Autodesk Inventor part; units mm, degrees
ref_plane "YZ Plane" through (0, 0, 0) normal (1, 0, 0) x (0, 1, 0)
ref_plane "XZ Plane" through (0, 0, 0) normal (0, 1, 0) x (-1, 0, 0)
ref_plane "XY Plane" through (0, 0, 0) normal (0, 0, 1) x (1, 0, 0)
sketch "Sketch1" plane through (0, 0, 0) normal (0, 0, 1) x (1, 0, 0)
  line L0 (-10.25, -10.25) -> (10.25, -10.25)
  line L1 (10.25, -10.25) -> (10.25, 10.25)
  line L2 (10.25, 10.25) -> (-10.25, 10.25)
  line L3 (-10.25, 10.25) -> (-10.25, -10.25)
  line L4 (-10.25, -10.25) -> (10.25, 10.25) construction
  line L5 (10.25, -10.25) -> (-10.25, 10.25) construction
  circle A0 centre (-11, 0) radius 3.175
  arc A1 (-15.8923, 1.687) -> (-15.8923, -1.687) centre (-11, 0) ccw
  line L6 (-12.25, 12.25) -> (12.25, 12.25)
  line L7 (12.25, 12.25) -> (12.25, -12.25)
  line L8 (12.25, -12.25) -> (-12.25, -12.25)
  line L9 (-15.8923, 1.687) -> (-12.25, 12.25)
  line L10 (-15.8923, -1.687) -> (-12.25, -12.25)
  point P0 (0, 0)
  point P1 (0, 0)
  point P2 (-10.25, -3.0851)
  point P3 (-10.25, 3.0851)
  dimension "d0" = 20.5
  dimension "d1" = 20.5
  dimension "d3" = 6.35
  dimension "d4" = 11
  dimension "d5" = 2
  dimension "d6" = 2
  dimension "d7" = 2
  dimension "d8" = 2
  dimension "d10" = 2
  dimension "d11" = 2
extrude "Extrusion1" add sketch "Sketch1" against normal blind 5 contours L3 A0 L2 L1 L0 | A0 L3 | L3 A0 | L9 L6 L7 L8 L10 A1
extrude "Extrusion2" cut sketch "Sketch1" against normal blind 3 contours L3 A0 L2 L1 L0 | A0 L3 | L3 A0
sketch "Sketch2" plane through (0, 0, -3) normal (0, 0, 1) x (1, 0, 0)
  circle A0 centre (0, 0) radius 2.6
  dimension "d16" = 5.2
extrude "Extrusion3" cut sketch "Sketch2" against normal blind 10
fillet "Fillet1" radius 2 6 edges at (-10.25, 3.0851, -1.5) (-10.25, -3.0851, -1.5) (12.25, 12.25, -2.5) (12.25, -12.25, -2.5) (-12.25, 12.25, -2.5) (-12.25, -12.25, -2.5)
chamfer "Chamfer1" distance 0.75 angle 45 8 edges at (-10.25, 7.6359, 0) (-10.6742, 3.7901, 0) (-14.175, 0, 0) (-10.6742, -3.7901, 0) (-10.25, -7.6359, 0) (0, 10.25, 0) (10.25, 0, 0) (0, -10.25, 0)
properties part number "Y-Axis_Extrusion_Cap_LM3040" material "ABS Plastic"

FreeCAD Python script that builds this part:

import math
import FreeCAD as App
import Part
import Sketcher

V = App.Vector


def edges_at(feature, points):
    """Names of the edges that pass closest to the given points."""
    edges = feature.Shape.Edges
    near = lambda p: min(range(len(edges)), key=lambda i: edges[i].distToShape(Part.Vertex(*p))[0])
    return sorted({f"Edge{near(p) + 1}" for p in points})

doc = App.newDocument("Part")
body = doc.addObject("PartDesign::Body", "Body")

# Sketch on XY plane
sketch1 = body.newObject("Sketcher::SketchObject", "Sketch")
sketch1.AttachmentSupport = (doc.getObject("XY_Plane"), [""])
sketch1.MapMode = "FlatFace"
sketch1.addGeometry([
    Part.LineSegment(V(-12.2, 12.2, 0), V(-15.9, 1.7, 0)),  # 0
    Part.ArcOfCircle(Part.Circle(V(-11, 0, 0), V(0, 0, 1), 5.2), math.radians(161), math.radians(199)),  # 1
    Part.LineSegment(V(-15.9, -1.7, 0), V(-12.2, -12.2, 0)),  # 2
    Part.LineSegment(V(-12.2, -12.2, 0), V(12.2, -12.2, 0)),  # 3
    Part.LineSegment(V(12.2, -12.2, 0), V(12.2, 12.2, 0)),  # 4
    Part.LineSegment(V(12.2, 12.2, 0), V(-12.2, 12.2, 0)),  # 5
], False)
sketch1.addConstraint([
    Sketcher.Constraint("Tangent", 0, 2, 1, 1),
    Sketcher.Constraint("Tangent", 1, 2, 2, 1),
    Sketcher.Constraint("Coincident", 2, 2, 3, 1),
    Sketcher.Constraint("Coincident", 3, 2, 4, 1),
    Sketcher.Constraint("Coincident", 4, 2, 5, 1),
    Sketcher.Constraint("Coincident", 5, 2, 0, 1),
    Sketcher.Constraint("Horizontal", 3),
    Sketcher.Constraint("Vertical", 4),
    Sketcher.Constraint("Horizontal", 5),
    Sketcher.Constraint("Symmetric", 2, 2, 4, 2, -1, 1),
    Sketcher.Constraint("Symmetric", 0, 2, 1, 2, -1),
    Sketcher.Constraint("Equal", 5, 4),
    Sketcher.Constraint("DistanceX", 1, 3, -1, 1, 11.0),
    Sketcher.Constraint("DistanceX", 3, 1, 3, 2, 24.5),
    Sketcher.Constraint("Radius", 1, 5.175),
])
pad1 = body.newObject("PartDesign::Pad", "Pad")
pad1.Profile = sketch1
pad1.Length = 5
pad1.Reversed = True

# Sketch on XY plane
sketch2 = body.newObject("Sketcher::SketchObject", "Sketch001")
sketch2.AttachmentSupport = (doc.getObject("XY_Plane"), [""])
sketch2.MapMode = "FlatFace"
sketch2.addGeometry([
    Part.LineSegment(V(-10.2, -3.1, 0), V(-10.2, -10.2, 0)),  # 0
    Part.LineSegment(V(-10.2, -10.2, 0), V(10.2, -10.2, 0)),  # 1
    Part.LineSegment(V(10.2, -10.2, 0), V(10.2, 10.2, 0)),  # 2
    Part.LineSegment(V(10.2, 10.2, 0), V(-10.2, 10.2, 0)),  # 3
    Part.LineSegment(V(-10.2, 10.2, 0), V(-10.2, 3.1, 0)),  # 4
    Part.ArcOfCircle(Part.Circle(V(-11, 0, 0), V(0, 0, 1), 3.2), math.radians(76), math.radians(284)),  # 5
], False)
sketch2.addConstraint([
    Sketcher.Constraint("Coincident", 0, 2, 1, 1),
    Sketcher.Constraint("Coincident", 1, 2, 2, 1),
    Sketcher.Constraint("Coincident", 2, 2, 3, 1),
    Sketcher.Constraint("Coincident", 3, 2, 4, 1),
    Sketcher.Constraint("Coincident", 4, 2, 5, 1),
    Sketcher.Constraint("Coincident", 5, 2, 0, 1),
    Sketcher.Constraint("Vertical", 0),
    Sketcher.Constraint("Horizontal", 1),
    Sketcher.Constraint("Vertical", 2),
    Sketcher.Constraint("Horizontal", 3),
    Sketcher.Constraint("Vertical", 4),
    Sketcher.Constraint("Symmetric", 0, 2, 2, 2, -1, 1),
    Sketcher.Constraint("Symmetric", 4, 2, 5, 2, -1),
    Sketcher.Constraint("Equal", 3, 2),
    Sketcher.Constraint("DistanceX", 1, 1, 1, 2, 20.5),
    Sketcher.Constraint("DistanceX", 5, 3, -1, 1, 11.0),
    Sketcher.Constraint("Radius", 5, 3.175),
])
pocket1 = body.newObject("PartDesign::Pocket", "Pocket")
pocket1.Profile = sketch2
pocket1.Length = 3

# Sketch on XY plane
sketch3 = body.newObject("Sketcher::SketchObject", "Sketch002")
sketch3.AttachmentSupport = (doc.getObject("XY_Plane"), [""])
sketch3.MapMode = "FlatFace"
sketch3.AttachmentOffset = App.Placement(V(0, 0, -3), App.Rotation())
sketch3.addGeometry(Part.Circle(V(0, 0, 0), V(0, 0, 1), 2.6), False)
sketch3.addConstraint([
    Sketcher.Constraint("Coincident", 0, 3, -1, 1),
    Sketcher.Constraint("Diameter", 0, 5.2),
])
pocket2 = body.newObject("PartDesign::Pocket", "Pocket001")
pocket2.Profile = sketch3
pocket2.Length = 10
doc.recompute()

fillet = body.newObject("PartDesign::Fillet", "Fillet")
fillet.Base = (pocket2, edges_at(pocket2, [
    (-10.25, 3.085, -1.5),
    (-10.25, -3.085, -1.5),
    (12.25, 12.25, -2.5),
    (12.25, -12.25, -2.5),
    (-12.25, 12.25, -2.5),
    (-12.25, -12.25, -2.5),
]))
fillet.Radius = 2
doc.recompute()

chamfer = body.newObject("PartDesign::Chamfer", "Chamfer")
chamfer.Base = (fillet, edges_at(fillet, [
    (-10.25, 7.636, 0),
    (-10.674, 3.79, 0),
    (-14.175, 0, 0),
    (-10.674, -3.79, 0),
    (-10.25, -7.636, 0),
    (0, 10.25, 0),
    (10.25, 0, 0),
    (0, -10.25, 0),
]))
chamfer.Size = 0.75

doc.recompute()
